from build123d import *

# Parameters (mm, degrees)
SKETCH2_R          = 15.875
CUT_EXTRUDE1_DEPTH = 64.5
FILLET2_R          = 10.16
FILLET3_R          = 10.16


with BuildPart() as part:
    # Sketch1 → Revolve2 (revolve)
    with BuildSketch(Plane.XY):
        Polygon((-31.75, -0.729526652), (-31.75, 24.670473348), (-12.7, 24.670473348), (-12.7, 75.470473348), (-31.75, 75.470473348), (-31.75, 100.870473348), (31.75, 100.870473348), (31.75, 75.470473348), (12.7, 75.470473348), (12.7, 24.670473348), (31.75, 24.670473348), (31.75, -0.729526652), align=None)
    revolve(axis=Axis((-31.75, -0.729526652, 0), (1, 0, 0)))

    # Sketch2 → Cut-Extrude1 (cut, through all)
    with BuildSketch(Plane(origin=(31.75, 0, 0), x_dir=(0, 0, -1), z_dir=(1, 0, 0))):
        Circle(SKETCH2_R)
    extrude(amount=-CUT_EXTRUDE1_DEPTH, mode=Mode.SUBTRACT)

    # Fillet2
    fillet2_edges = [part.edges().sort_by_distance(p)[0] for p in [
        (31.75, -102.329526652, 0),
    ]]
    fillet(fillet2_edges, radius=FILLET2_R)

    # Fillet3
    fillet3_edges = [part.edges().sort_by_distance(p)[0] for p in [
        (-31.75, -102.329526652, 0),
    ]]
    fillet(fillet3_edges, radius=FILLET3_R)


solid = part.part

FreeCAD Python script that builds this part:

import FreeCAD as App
import Part
import Sketcher
from FreeCAD import Vector
Q = App.Units.Quantity


def edges_at(feature, points):
    """Names of the edges that pass closest to the given points."""
    edges = feature.Shape.Edges
    near = lambda p: min(range(len(edges)), key=lambda i: edges[i].distToShape(Part.Vertex(*p))[0])
    return sorted({f"Edge{near(p) + 1}" for p in points})

doc = App.newDocument("Part")
body = doc.addObject("PartDesign::Body", "Body")

sketch1 = body.newObject("Sketcher::SketchObject", "Sketch")
sketch1.AttachmentSupport = (doc.getObject("XY_Plane"), [""])
sketch1.MapMode = "FlatFace"
sketch1.addGeometry([
    Part.LineSegment(Vector(-31.75, 24.670473, 0), Vector(-31.75, -0.729527, 0)),
    Part.LineSegment(Vector(-31.75, -0.729527, 0), Vector(31.75, -0.729527, 0)),
    Part.LineSegment(Vector(31.75, -0.729527, 0), Vector(31.75, 24.670473, 0)),
    Part.LineSegment(Vector(31.75, 24.670473, 0), Vector(12.7, 24.670473, 0)),
    Part.LineSegment(Vector(12.7, 24.670473, 0), Vector(12.7, 75.470473, 0)),
    Part.LineSegment(Vector(12.7, 75.470473, 0), Vector(31.75, 75.470473, 0)),
    Part.LineSegment(Vector(31.75, 75.470473, 0), Vector(31.75, 100.870473, 0)),
    Part.LineSegment(Vector(31.75, 100.870473, 0), Vector(-31.75, 100.870473, 0)),
    Part.LineSegment(Vector(-31.75, 100.870473, 0), Vector(-31.75, 75.470473, 0)),
    Part.LineSegment(Vector(-31.75, 75.470473, 0), Vector(-12.7, 75.470473, 0)),
    Part.LineSegment(Vector(-12.7, 75.470473, 0), Vector(-12.7, 24.670473, 0)),
    Part.LineSegment(Vector(-12.7, 24.670473, 0), Vector(-31.75, 24.670473, 0)),
], False)
sketch1.addGeometry(Part.LineSegment(Vector(-31.75, -0.729527, 0), Vector(31.75, -0.729527, 0)), True)
sketch1.addConstraint([
    Sketcher.Constraint("Coincident", 0, 2, 1, 1),
    Sketcher.Constraint("Coincident", 1, 2, 2, 1),
    Sketcher.Constraint("Coincident", 2, 2, 3, 1),
    Sketcher.Constraint("Coincident", 3, 2, 4, 1),
    Sketcher.Constraint("Coincident", 4, 2, 5, 1),
    Sketcher.Constraint("Coincident", 5, 2, 6, 1),
    Sketcher.Constraint("Coincident", 6, 2, 7, 1),
    Sketcher.Constraint("Coincident", 7, 2, 8, 1),
    Sketcher.Constraint("Coincident", 8, 2, 9, 1),
    Sketcher.Constraint("Coincident", 9, 2, 10, 1),
    Sketcher.Constraint("Coincident", 10, 2, 11, 1),
    Sketcher.Constraint("Coincident", 11, 2, 0, 1),
    Sketcher.Constraint("Vertical", 0),
    Sketcher.Constraint("Horizontal", 1),
    Sketcher.Constraint("Vertical", 2),
    Sketcher.Constraint("Horizontal", 3),
    Sketcher.Constraint("Vertical", 4),
    Sketcher.Constraint("Horizontal", 5),
    Sketcher.Constraint("Vertical", 6),
    Sketcher.Constraint("Horizontal", 7),
    Sketcher.Constraint("Vertical", 8),
    Sketcher.Constraint("Horizontal", 9),
    Sketcher.Constraint("Vertical", 10),
    Sketcher.Constraint("Horizontal", 11),
    Sketcher.Constraint("Horizontal", 12),
    Sketcher.Constraint("Coincident", 12, 1, 0, 2),
    Sketcher.Constraint("Symmetric", 5, 2, 8, 2, -2),
    Sketcher.Constraint("Symmetric", 3, 2, 10, 2, -2),
    Sketcher.Constraint("Vertical", 2, 2, 5, 2),
    Sketcher.Constraint("Vertical", 0, 2, 7, 2),
    Sketcher.Constraint("Vertical", 6, 2, 12, 2),
    Sketcher.Constraint("Equal", 2, 6),
    Sketcher.Constraint("DistanceY", 0, 2, 0, 1, Q("1 in")),
    Sketcher.Constraint("DistanceY", 4, 1, 4, 2, Q("2 in")),
    Sketcher.Constraint("DistanceX", 1, 1, 1, 2, Q("2.5 in")),
    Sketcher.Constraint("DistanceX", 9, 2, 4, 2, Q("1 in")),
    Sketcher.Constraint("DistanceY", 0, 2, -1, 1, Q("0.729527 mm")),
])
revolution = body.newObject("PartDesign::Revolution", "Revolution")
revolution.Profile = sketch1
revolution.ReferenceAxis = (sketch1, ["Axis0"])
revolution.Angle = 360

sketch2 = body.newObject("Sketcher::SketchObject", "Sketch001")
sketch2.AttachmentSupport = (doc.getObject("YZ_Plane"), [""])
sketch2.MapMode = "FlatFace"
sketch2.AttachmentOffset = App.Placement(Vector(0, 0, 1.25 * 25.4), App.Rotation())
sketch2.addGeometry(Part.Circle(Vector(0, 0, 0), Vector(0, 0, 1), 15.875), False)
sketch2.addConstraint([
    Sketcher.Constraint("Coincident", 0, 3, -1, 1),
    Sketcher.Constraint("Diameter", 0, Q("1.25 in")),
])
pocket1 = body.newObject("PartDesign::Pocket", "Pocket")
pocket1.Profile = sketch2
pocket1.Type = "ThroughAll"
doc.recompute()

fillet = body.newObject("PartDesign::Fillet", "Fillet")
fillet.Base = (pocket1, edges_at(pocket1, [(31.75, -102.33, 0)]))
fillet.Radius = Q("0.4 in")
doc.recompute()

fillet2 = body.newObject("PartDesign::Fillet", "Fillet001")
fillet2.Base = (fillet, edges_at(fillet, [(-31.75, -102.33, 0)]))
fillet2.Radius = Q("0.4 in")

doc.recompute()
